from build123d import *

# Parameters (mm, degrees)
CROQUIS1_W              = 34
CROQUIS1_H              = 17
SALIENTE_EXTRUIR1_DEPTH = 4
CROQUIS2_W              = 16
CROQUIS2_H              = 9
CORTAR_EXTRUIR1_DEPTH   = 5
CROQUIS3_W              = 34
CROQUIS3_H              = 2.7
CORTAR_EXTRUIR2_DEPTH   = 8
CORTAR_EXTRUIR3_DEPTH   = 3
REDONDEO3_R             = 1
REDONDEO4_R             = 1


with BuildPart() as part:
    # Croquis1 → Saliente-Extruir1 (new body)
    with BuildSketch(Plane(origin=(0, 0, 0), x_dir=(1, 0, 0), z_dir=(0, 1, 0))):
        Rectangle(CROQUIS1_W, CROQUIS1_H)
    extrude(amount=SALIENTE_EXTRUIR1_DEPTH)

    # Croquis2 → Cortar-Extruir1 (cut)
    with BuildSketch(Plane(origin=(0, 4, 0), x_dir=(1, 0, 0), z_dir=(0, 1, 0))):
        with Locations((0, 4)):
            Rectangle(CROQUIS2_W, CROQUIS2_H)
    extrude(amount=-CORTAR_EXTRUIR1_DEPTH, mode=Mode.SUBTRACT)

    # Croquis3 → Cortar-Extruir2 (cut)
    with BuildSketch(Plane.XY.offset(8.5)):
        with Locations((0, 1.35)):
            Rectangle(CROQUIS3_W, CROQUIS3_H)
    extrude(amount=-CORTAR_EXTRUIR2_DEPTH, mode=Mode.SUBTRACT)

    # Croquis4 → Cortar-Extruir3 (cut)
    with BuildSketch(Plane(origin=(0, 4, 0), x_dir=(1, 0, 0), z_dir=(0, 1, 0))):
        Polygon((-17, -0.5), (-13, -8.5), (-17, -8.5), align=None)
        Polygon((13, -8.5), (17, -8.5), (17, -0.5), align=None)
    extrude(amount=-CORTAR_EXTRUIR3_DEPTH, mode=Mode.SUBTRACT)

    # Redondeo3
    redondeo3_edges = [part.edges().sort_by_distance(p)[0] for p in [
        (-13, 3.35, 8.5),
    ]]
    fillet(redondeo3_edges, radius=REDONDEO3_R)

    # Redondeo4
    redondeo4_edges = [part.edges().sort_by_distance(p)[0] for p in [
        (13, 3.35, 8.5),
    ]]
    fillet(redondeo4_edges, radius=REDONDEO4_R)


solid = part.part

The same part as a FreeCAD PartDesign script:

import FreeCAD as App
import Part
import Sketcher
Q = App.Units.Quantity


def edges_at(feature, points):
    """Names of the edges that pass closest to the given points."""
    edges = feature.Shape.Edges
    near = lambda p: min(range(len(edges)), key=lambda i: edges[i].distToShape(Part.Vertex(*p))[0])
    return sorted({f"Edge{near(p) + 1}" for p in points})

doc = App.newDocument("Part")
body = doc.addObject("PartDesign::Body", "Body")

# Sketch on XZ plane
sketch1 = body.newObject("Sketcher::SketchObject", "Sketch")
sketch1.AttachmentSupport = (doc.getObject("XZ_Plane"), [""])
sketch1.MapMode = "FlatFace"
sketch1.addGeometry([
    Part.LineSegment(App.Vector(-17, -8, 0), App.Vector(-17, 8, 0)),
    Part.LineSegment(App.Vector(-17, 8, 0), App.Vector(17, 8, 0)),
    Part.LineSegment(App.Vector(17, 8, 0), App.Vector(17, -8, 0)),
    Part.LineSegment(App.Vector(17, -8, 0), App.Vector(-17, -8, 0)),
], False)
sketch1.addConstraint([
    Sketcher.Constraint("Coincident", 0, 2, 1, 1),
    Sketcher.Constraint("Coincident", 1, 2, 2, 1),
    Sketcher.Constraint("Coincident", 2, 2, 3, 1),
    Sketcher.Constraint("Coincident", 3, 2, 0, 1),
    Sketcher.Constraint("Vertical", 0),
    Sketcher.Constraint("Horizontal", 1),
    Sketcher.Constraint("Vertical", 2),
    Sketcher.Constraint("Horizontal", 3),
    Sketcher.Constraint("Symmetric", 0, 2, 2, 2, -1, 1),
    Sketcher.Constraint("DistanceX", 1, 1, 1, 2, Q("34 mm")),
    Sketcher.Constraint("DistanceY", 0, 1, 0, 2, Q("17 mm")),
])
pad1 = body.newObject("PartDesign::Pad", "Pad")
pad1.Profile = sketch1
pad1.Length = 4
pad1.Reversed = True

# Sketch on XZ plane
sketch2 = body.newObject("Sketcher::SketchObject", "Sketch001")
sketch2.AttachmentSupport = (doc.getObject("XZ_Plane"), [""])
sketch2.MapMode = "FlatFace"
sketch2.AttachmentOffset = App.Placement(App.Vector(0, 0, -4), App.Rotation())
sketch2.addGeometry([
    Part.LineSegment(App.Vector(-8, -8, 0), App.Vector(-8, 0, 0)),
    Part.LineSegment(App.Vector(-8, 0, 0), App.Vector(8, 0, 0)),
    Part.LineSegment(App.Vector(8, 0, 0), App.Vector(8, -8, 0)),
    Part.LineSegment(App.Vector(8, -8, 0), App.Vector(-8, -8, 0)),
], False)
sketch2.addConstraint([
    Sketcher.Constraint("Coincident", 0, 2, 1, 1),
    Sketcher.Constraint("Coincident", 1, 2, 2, 1),
    Sketcher.Constraint("Coincident", 2, 2, 3, 1),
    Sketcher.Constraint("Coincident", 3, 2, 0, 1),
    Sketcher.Constraint("Vertical", 0),
    Sketcher.Constraint("Horizontal", 1),
    Sketcher.Constraint("Vertical", 2),
    Sketcher.Constraint("Horizontal", 3),
    Sketcher.Constraint("DistanceX", 1, 1, 1, 2, Q("16 mm")),
    Sketcher.Constraint("DistanceY", 0, 1, 0, 2, Q("9 mm")),
    Sketcher.Constraint("DistanceX", 0, 2, -1, 1, Q("8 mm")),
    Sketcher.Constraint("DistanceY", -1, 1, 0, 2, Q("0.5 mm")),
])
pocket1 = body.newObject("PartDesign::Pocket", "Pocket")
pocket1.Profile = sketch2
pocket1.Length = 5
pocket1.Reversed = True

# Sketch on XY plane
sketch3 = body.newObject("Sketcher::SketchObject", "Sketch002")
sketch3.AttachmentSupport = (doc.getObject("XY_Plane"), [""])
sketch3.MapMode = "FlatFace"
sketch3.AttachmentOffset = App.Placement(App.Vector(0, 0, 8.5), App.Rotation())
sketch3.addGeometry([
    Part.LineSegment(App.Vector(-17, 2.7, 0), App.Vector(-17, 0, 0)),
    Part.LineSegment(App.Vector(-17, 0, 0), App.Vector(17, 0, 0)),
    Part.LineSegment(App.Vector(17, 0, 0), App.Vector(17, 2.7, 0)),
    Part.LineSegment(App.Vector(17, 2.7, 0), App.Vector(-17, 2.7, 0)),
], False)
sketch3.addConstraint([
    Sketcher.Constraint("Coincident", 0, 2, 1, 1),
    Sketcher.Constraint("Coincident", 1, 2, 2, 1),
    Sketcher.Constraint("Coincident", 2, 2, 3, 1),
    Sketcher.Constraint("Coincident", 3, 2, 0, 1),
    Sketcher.Constraint("Vertical", 0),
    Sketcher.Constraint("Horizontal", 1),
    Sketcher.Constraint("Vertical", 2),
    Sketcher.Constraint("Horizontal", 3),
    Sketcher.Constraint("Symmetric", 0, 2, 1, 2, -1, 1),
    Sketcher.Constraint("DistanceX", 1, 1, 1, 2, Q("34 mm")),
    Sketcher.Constraint("DistanceY", 0, 2, 0, 1, Q("2.7 mm")),
])
pocket2 = body.newObject("PartDesign::Pocket", "Pocket001")
pocket2.Profile = sketch3
pocket2.Length = 8

# Sketch on XZ plane
sketch4 = body.newObject("Sketcher::SketchObject", "Sketch003")
sketch4.AttachmentSupport = (doc.getObject("XZ_Plane"), [""])
sketch4.MapMode = "FlatFace"
sketch4.AttachmentOffset = App.Placement(App.Vector(0, 0, -4), App.Rotation())
sketch4.addGeometry([
    Part.LineSegment(App.Vector(-13, 8.5, 0), App.Vector(-17, 0.5, 0)),  # 0
    Part.LineSegment(App.Vector(-17, 0.5, 0), App.Vector(-17, 8.5, 0)),  # 1
    Part.LineSegment(App.Vector(-17, 8.5, 0), App.Vector(-13, 8.5, 0)),  # 2
    Part.LineSegment(App.Vector(13, 8.5, 0), App.Vector(17, 8.5, 0)),  # 3
    Part.LineSegment(App.Vector(17, 8.5, 0), App.Vector(17, 0.5, 0)),  # 4
    Part.LineSegment(App.Vector(17, 0.5, 0), App.Vector(13, 8.5, 0)),  # 5
], False)
sketch4.addConstraint([
    Sketcher.Constraint("Coincident", 0, 2, 1, 1),
    Sketcher.Constraint("Coincident", 1, 2, 2, 1),
    Sketcher.Constraint("Coincident", 2, 2, 0, 1),
    Sketcher.Constraint("Coincident", 3, 2, 4, 1),
    Sketcher.Constraint("Coincident", 4, 2, 5, 1),
    Sketcher.Constraint("Coincident", 5, 2, 3, 1),
    Sketcher.Constraint("Vertical", 1),
    Sketcher.Constraint("Horizontal", 2),
    Sketcher.Constraint("Horizontal", 3),
    Sketcher.Constraint("Vertical", 4),
    Sketcher.Constraint("Symmetric", 1, 2, 3, 2, -2),
    Sketcher.Constraint("Horizontal", 0, 2, 4, 2),
    Sketcher.Constraint("Equal", 2, 3),
    Sketcher.Constraint("DistanceX", 2, 1, 2, 2, Q("4 mm")),
    Sketcher.Constraint("DistanceY", 1, 1, 1, 2, Q("8 mm")),
    Sketcher.Constraint("DistanceX", 0, 2, -1, 1, Q("17 mm")),
    Sketcher.Constraint("DistanceY", -1, 1, 0, 2, Q("0.5 mm")),
])
pocket3 = body.newObject("PartDesign::Pocket", "Pocket002")
pocket3.Profile = sketch4
pocket3.Length = 3
pocket3.Reversed = True
doc.recompute()

fillet = body.newObject("PartDesign::Fillet", "Fillet")
fillet.Base = (pocket3, edges_at(pocket3, [(-13, 3.35, 8.5)]))
fillet.Radius = 1
doc.recompute()

fillet2 = body.newObject("PartDesign::Fillet", "Fillet001")
fillet2.Base = (fillet, edges_at(fillet, [(13, 3.35, 8.5)]))
fillet2.Radius = 1

doc.recompute()
